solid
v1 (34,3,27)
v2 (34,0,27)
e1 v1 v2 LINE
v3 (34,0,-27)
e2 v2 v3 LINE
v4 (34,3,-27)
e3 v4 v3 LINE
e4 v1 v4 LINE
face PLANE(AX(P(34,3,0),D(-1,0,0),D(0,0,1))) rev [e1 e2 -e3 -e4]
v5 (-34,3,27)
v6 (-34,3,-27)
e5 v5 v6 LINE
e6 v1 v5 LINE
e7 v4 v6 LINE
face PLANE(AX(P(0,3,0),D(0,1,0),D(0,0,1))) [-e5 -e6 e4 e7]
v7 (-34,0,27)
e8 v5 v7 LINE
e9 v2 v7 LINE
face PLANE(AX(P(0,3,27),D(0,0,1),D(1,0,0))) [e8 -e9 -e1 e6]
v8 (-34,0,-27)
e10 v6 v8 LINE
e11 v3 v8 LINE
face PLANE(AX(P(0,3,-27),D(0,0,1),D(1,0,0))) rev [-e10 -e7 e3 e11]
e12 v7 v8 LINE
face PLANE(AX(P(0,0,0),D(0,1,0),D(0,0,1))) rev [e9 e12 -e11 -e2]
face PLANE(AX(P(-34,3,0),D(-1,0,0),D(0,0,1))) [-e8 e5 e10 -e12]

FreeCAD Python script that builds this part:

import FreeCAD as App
import Part
import Sketcher
Q = App.Units.Quantity

doc = App.newDocument("Part")
body = doc.addObject("PartDesign::Body", "Body")

sketch1 = doc.addObject("Sketcher::SketchObject", "Sketch")
body.addObject(sketch1)
sketch1.AttachmentSupport = (doc.XZ_Plane, [""])
sketch1.MapMode = "FlatFace"
sketch1.addGeometry(Part.LineSegment(App.Vector(34, -27, 0), App.Vector(-34, -27, 0)), False)
sketch1.addGeometry(Part.LineSegment(App.Vector(-34, -27, 0), App.Vector(-34, 27, 0)), False)
sketch1.addGeometry(Part.LineSegment(App.Vector(-34, 27, 0), App.Vector(34, 27, 0)), False)
sketch1.addGeometry(Part.LineSegment(App.Vector(34, 27, 0), App.Vector(34, -27, 0)), False)
sketch1.addConstraint(Sketcher.Constraint("Coincident", 0, 2, 1, 1))
sketch1.addConstraint(Sketcher.Constraint("Coincident", 1, 2, 2, 1))
sketch1.addConstraint(Sketcher.Constraint("Coincident", 2, 2, 3, 1))
sketch1.addConstraint(Sketcher.Constraint("Coincident", 3, 2, 0, 1))
sketch1.addConstraint(Sketcher.Constraint("Horizontal", 0))
sketch1.addConstraint(Sketcher.Constraint("Vertical", 1))
sketch1.addConstraint(Sketcher.Constraint("Horizontal", 2))
sketch1.addConstraint(Sketcher.Constraint("Vertical", 3))
sketch1.addConstraint(Sketcher.Constraint("Symmetric", 0, 2, 2, 2, -1, 1))
sketch1.addConstraint(Sketcher.Constraint("DistanceX", 0, 2, 0, 1, Q("68 mm")))
sketch1.addConstraint(Sketcher.Constraint("DistanceY", 1, 1, 1, 2, Q("54 mm")))
pad1 = doc.addObject("PartDesign::Pad", "Pad")
body.addObject(pad1)
pad1.Profile = sketch1
pad1.Length = 3
pad1.Reversed = True

doc.recompute()
